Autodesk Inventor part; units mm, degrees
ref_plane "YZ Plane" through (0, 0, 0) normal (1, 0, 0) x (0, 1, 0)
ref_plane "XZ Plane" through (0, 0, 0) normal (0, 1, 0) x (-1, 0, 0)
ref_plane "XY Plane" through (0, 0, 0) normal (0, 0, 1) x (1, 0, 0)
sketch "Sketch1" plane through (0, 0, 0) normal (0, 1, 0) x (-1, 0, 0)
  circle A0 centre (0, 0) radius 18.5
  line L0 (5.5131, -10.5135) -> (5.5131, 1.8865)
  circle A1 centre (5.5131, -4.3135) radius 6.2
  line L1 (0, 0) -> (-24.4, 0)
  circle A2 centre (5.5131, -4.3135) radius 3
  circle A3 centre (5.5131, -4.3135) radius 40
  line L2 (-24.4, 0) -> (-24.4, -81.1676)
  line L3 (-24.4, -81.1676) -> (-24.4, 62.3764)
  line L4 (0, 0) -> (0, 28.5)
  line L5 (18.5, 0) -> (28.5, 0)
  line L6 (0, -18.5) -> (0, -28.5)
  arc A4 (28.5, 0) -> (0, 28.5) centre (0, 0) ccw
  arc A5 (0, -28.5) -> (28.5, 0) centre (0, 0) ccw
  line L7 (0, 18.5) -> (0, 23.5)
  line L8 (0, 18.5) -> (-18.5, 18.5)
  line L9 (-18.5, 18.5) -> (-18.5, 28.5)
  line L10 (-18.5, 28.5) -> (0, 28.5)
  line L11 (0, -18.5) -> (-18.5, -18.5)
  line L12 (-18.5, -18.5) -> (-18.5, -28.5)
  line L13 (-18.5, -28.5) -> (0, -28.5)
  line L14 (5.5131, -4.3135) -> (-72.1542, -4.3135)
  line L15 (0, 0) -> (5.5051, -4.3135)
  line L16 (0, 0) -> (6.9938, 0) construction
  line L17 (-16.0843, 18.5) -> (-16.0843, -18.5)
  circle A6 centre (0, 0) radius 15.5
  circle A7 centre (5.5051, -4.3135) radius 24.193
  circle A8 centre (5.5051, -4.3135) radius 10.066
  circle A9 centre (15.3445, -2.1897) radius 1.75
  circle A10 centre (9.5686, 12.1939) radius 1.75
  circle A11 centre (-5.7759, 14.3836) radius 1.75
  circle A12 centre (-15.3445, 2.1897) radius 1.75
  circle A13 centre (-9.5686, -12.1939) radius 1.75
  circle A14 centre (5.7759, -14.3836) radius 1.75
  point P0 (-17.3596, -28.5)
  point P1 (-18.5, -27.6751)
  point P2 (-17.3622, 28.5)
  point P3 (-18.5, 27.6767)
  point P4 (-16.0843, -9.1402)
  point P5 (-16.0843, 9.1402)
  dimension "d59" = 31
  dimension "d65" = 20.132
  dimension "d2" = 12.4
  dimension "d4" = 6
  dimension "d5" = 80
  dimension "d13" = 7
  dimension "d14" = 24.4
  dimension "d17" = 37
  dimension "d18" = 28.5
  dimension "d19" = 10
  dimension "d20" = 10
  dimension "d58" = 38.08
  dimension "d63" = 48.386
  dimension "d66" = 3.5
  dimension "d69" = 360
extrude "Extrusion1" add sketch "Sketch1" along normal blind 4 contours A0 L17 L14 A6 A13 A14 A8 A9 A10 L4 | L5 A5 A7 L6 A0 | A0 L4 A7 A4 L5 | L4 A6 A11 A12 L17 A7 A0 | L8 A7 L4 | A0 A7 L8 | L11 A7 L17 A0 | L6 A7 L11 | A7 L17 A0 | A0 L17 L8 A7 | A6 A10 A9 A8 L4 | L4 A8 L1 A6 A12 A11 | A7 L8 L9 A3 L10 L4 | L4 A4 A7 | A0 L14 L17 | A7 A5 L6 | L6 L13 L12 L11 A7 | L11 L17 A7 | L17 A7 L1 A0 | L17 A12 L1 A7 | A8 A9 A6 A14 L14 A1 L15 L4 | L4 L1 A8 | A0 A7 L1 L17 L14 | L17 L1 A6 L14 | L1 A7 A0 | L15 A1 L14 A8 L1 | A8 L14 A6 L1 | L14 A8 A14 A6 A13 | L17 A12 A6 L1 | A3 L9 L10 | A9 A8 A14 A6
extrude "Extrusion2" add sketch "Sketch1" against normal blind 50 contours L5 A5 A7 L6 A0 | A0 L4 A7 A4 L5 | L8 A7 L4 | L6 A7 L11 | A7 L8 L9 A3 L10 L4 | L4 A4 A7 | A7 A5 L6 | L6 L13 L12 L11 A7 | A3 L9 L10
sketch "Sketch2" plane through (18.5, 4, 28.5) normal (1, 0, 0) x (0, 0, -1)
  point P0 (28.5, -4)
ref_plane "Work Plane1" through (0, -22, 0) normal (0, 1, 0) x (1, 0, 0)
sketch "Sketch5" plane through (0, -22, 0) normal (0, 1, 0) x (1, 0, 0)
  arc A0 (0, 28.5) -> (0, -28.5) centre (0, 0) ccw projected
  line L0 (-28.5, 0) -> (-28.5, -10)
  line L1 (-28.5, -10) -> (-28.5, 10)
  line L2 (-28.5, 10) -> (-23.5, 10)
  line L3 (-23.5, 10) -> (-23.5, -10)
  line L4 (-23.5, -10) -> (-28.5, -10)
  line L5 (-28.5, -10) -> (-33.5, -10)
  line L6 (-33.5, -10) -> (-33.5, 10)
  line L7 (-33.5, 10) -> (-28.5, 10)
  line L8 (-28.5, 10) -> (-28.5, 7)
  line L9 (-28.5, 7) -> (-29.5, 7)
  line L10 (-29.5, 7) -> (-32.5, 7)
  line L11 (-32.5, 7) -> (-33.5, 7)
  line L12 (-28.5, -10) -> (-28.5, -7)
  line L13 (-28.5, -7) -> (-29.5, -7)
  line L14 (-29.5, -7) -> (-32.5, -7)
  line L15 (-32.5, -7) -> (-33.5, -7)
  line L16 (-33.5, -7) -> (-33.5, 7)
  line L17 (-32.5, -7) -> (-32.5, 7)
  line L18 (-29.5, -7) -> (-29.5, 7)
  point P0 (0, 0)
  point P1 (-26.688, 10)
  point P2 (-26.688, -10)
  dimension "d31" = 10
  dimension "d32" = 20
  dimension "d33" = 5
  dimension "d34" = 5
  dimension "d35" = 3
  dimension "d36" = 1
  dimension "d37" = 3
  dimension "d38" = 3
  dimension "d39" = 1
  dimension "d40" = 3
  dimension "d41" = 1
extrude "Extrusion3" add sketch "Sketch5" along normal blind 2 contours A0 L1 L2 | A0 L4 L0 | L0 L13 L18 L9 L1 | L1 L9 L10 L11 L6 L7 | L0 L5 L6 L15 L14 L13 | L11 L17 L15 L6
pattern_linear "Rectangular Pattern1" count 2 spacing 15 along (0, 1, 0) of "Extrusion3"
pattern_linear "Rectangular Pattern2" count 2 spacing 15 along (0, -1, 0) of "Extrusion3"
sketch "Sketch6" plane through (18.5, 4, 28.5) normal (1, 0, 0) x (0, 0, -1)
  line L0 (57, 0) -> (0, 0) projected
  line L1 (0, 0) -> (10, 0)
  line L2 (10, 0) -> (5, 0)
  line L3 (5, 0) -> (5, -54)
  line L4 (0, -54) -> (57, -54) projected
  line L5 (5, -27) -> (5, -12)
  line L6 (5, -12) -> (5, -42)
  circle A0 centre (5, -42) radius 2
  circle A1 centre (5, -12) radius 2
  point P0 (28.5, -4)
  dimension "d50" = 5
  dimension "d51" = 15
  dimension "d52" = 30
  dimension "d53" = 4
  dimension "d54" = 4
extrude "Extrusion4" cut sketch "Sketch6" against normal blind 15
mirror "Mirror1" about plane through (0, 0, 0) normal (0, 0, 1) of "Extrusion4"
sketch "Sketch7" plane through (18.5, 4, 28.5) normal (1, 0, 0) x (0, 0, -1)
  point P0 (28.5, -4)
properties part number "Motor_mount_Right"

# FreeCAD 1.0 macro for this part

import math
import FreeCAD as App
import Part
import Sketcher
Q = App.Units.Quantity

doc = App.newDocument("Part")
params = doc.addObject("Spreadsheet::Sheet", "Params")
for row, (alias, value) in enumerate([
    ("sketch1_diameter", "3.5 mm"),
    ("sketch1_diameter2", "12.4 mm"),
    ("sketch1_radius", "18.5 mm"),
    ("sketch1_radius2", "28.5 mm"),
    ("sketch1_height", "10 mm"),
    ("pad1_length", "4 mm"),
    ("sketch2_radius", "18.5 mm"),
    ("sketch2_radius2", "28.5 mm"),
    ("sketch2_width", "18.5 mm"),
    ("pad2_length", "50 mm"),
    ("sketch3_width", "3 mm"),
    ("sketch3_height", "20 mm"),
    ("sketch3_radius", "28.5 mm"),
    ("pad3_length", "2 mm"),
    ("linearpattern_pitch", "15 mm"),
    ("linearpattern2_pitch", "15 mm"),
    ("sketch4_diameter", "4 mm"),
    ("pocket1_length", "15 mm"),
], start=1):
    params.set(f"A{row}", alias)
    params.set(f"B{row}", "=" + value)
    params.setAlias(f"B{row}", alias)

body = doc.addObject("PartDesign::Body", "Body")

# Sketch on XZ plane
sketch1 = body.newObject("Sketcher::SketchObject", "Sketch")
sketch1.AttachmentSupport = (doc.getObject("XZ_Plane"), [""])
sketch1.MapMode = "FlatFace"
sketch1.addGeometry([
    Part.LineSegment(App.Vector(0, 28.5, 0), App.Vector(18.5, 28.5, 0)),  # 0
    Part.LineSegment(App.Vector(18.5, 28.5, 0), App.Vector(18.5, 18.5, 0)),  # 1
    Part.LineSegment(App.Vector(18.5, 18.5, 0), App.Vector(16.1, 18.5, 0)),  # 2
    Part.LineSegment(App.Vector(16.1, 18.5, 0), App.Vector(16.1, 9.1, 0)),  # 3
    Part.ArcOfCircle(Part.Circle(App.Vector(0, 0, 0), App.Vector(0, 0, 1), 18.5), math.radians(-30), math.radians(30)),  # 4
    Part.LineSegment(App.Vector(16.1, -9.1, 0), App.Vector(16.1, -18.5, 0)),  # 5
    Part.LineSegment(App.Vector(16.1, -18.5, 0), App.Vector(18.5, -18.5, 0)),  # 6
    Part.LineSegment(App.Vector(18.5, -18.5, 0), App.Vector(18.5, -28.5, 0)),  # 7
    Part.LineSegment(App.Vector(18.5, -28.5, 0), App.Vector(0, -28.5, 0)),  # 8
    Part.ArcOfCircle(Part.Circle(App.Vector(0, 0, 0), App.Vector(0, 0, 1), 28.5), math.radians(90), math.radians(270)),  # 9
    Part.Circle(App.Vector(9.6, -12.2, 0), App.Vector(0, 0, 1), 1.8),  # 10
    Part.Circle(App.Vector(-5.8, -14.4, 0), App.Vector(0, 0, 1), 1.8),  # 11
    Part.Circle(App.Vector(-15.3, -2.2, 0), App.Vector(0, 0, 1), 1.8),  # 12
    Part.Circle(App.Vector(-9.6, 12.2, 0), App.Vector(0, 0, 1), 1.8),  # 13
    Part.Circle(App.Vector(5.8, 14.4, 0), App.Vector(0, 0, 1), 1.8),  # 14
    Part.Circle(App.Vector(15.3, 2.2, 0), App.Vector(0, 0, 1), 1.8),  # 15
    Part.Circle(App.Vector(-5.5, -4.3, 0), App.Vector(0, 0, 1), 6.2),  # 16
], False)
sketch1.addConstraint([
    Sketcher.Constraint("Coincident", 0, 2, 1, 1),
    Sketcher.Constraint("Coincident", 1, 2, 2, 1),
    Sketcher.Constraint("Coincident", 2, 2, 3, 1),
    Sketcher.Constraint("Coincident", 3, 2, 4, 2),
    Sketcher.Constraint("Coincident", 4, 1, 5, 1),
    Sketcher.Constraint("Coincident", 5, 2, 6, 1),
    Sketcher.Constraint("Coincident", 6, 2, 7, 1),
    Sketcher.Constraint("Coincident", 7, 2, 8, 1),
    Sketcher.Constraint("Tangent", 8, 2, 9, 2),
    Sketcher.Constraint("Tangent", 9, 1, 0, 1),
    Sketcher.Constraint("Horizontal", 0),
    Sketcher.Constraint("Vertical", 1),
    Sketcher.Constraint("Horizontal", 2),
    Sketcher.Constraint("Vertical", 3),
    Sketcher.Constraint("Vertical", 5),
    Sketcher.Constraint("Horizontal", 6),
    Sketcher.Constraint("Vertical", 7),
    Sketcher.Constraint("Horizontal", 8),
    Sketcher.Constraint("Coincident", 4, 3, -1, 1),
    Sketcher.Constraint("Coincident", 9, 3, -1, 1),
    Sketcher.Constraint("Equal", 10, 11),
    Sketcher.Constraint("Equal", 11, 12),
    Sketcher.Constraint("Equal", 12, 13),
    Sketcher.Constraint("Equal", 13, 14),
    Sketcher.Constraint("Equal", 14, 15),
    Sketcher.Constraint("Symmetric", 10, 3, 13, 3, -1, 1),
    Sketcher.Constraint("Symmetric", 11, 3, 14, 3, -1, 1),
    Sketcher.Constraint("Symmetric", 12, 3, 15, 3, -1, 1),
    Sketcher.Constraint("Symmetric", 2, 2, 5, 2, -1),
    Sketcher.Constraint("Vertical", 1, 2, 6, 2),
    Sketcher.Constraint("Diameter", 10, Q("3.5 mm")),
    Sketcher.Constraint("Diameter", 16, Q("12.4 mm")),
    Sketcher.Constraint("Radius", 4, Q("18.5 mm")),
    Sketcher.Constraint("Radius", 9, Q("28.5 mm")),
    Sketcher.Constraint("DistanceY", 1, 2, 1, 1, Q("10 mm")),
    Sketcher.Constraint("DistanceX", 0, 1, 0, 2, Q("18.5 mm")),
    Sketcher.Constraint("DistanceY", 11, 3, 16, 3, Q("10.07 mm")),
    Sketcher.Constraint("DistanceY", 4, 1, 15, 3, Q("11.33 mm")),
    Sketcher.Constraint("DistanceX", 2, 2, 2, 1, Q("2.4157 mm")),
    Sketcher.Constraint("DistanceY", 10, 3, -1, 1, Q("12.194 mm")),
    Sketcher.Constraint("DistanceX", 11, 3, -1, 1, Q("5.776 mm")),
    Sketcher.Constraint("DistanceX", 16, 3, -1, 1, Q("5.513 mm")),
    Sketcher.Constraint("DistanceY", 11, 3, 12, 3, Q("12.194 mm")),
    Sketcher.Constraint("DistanceX", 12, 3, 10, 3, Q("24.913 mm")),
    Sketcher.Constraint("DistanceX", 12, 3, 13, 3, Q("5.776 mm")),
])
sketch1.setExpression("Constraints[30]", "Params.sketch1_diameter")
sketch1.setExpression("Constraints[31]", "Params.sketch1_diameter2")
sketch1.setExpression("Constraints[32]", "Params.sketch1_radius")
sketch1.setExpression("Constraints[33]", "Params.sketch1_radius2")
sketch1.setExpression("Constraints[34]", "Params.sketch1_height")
pad1 = body.newObject("PartDesign::Pad", "Pad")
pad1.Profile = sketch1
pad1.setExpression("Length", "Params.pad1_length")
pad1.Reversed = True

# Sketch on XZ plane
sketch2 = body.newObject("Sketcher::SketchObject", "Sketch001")
sketch2.AttachmentSupport = (doc.getObject("XZ_Plane"), [""])
sketch2.MapMode = "FlatFace"
sketch2.addGeometry([
    Part.LineSegment(App.Vector(0, 28, 0), App.Vector(18, 28, 0)),  # 0
    Part.LineSegment(App.Vector(18, 28, 0), App.Vector(18, 18, 0)),  # 1
    Part.LineSegment(App.Vector(18, 18, 0), App.Vector(0, 18, 0)),  # 2
    Part.ArcOfCircle(Part.Circle(App.Vector(0, 0, 0), App.Vector(0, 0, 1), 18), math.radians(90), math.radians(270)),  # 3
    Part.LineSegment(App.Vector(0, -18, 0), App.Vector(18, -18, 0)),  # 4
    Part.LineSegment(App.Vector(18, -18, 0), App.Vector(18, -28, 0)),  # 5
    Part.LineSegment(App.Vector(18, -28, 0), App.Vector(0, -28, 0)),  # 6
    Part.ArcOfCircle(Part.Circle(App.Vector(0, 0, 0), App.Vector(0, 0, 1), 28), math.radians(90), math.radians(270)),  # 7
], False)
sketch2.addConstraint([
    Sketcher.Constraint("Coincident", 0, 2, 1, 1),
    Sketcher.Constraint("Coincident", 1, 2, 2, 1),
    Sketcher.Constraint("Tangent", 2, 2, 3, 1),
    Sketcher.Constraint("Tangent", 3, 2, 4, 1),
    Sketcher.Constraint("Coincident", 4, 2, 5, 1),
    Sketcher.Constraint("Coincident", 5, 2, 6, 1),
    Sketcher.Constraint("Tangent", 6, 2, 7, 2),
    Sketcher.Constraint("Tangent", 7, 1, 0, 1),
    Sketcher.Constraint("Horizontal", 0),
    Sketcher.Constraint("Vertical", 1),
    Sketcher.Constraint("Horizontal", 2),
    Sketcher.Constraint("Horizontal", 4),
    Sketcher.Constraint("Vertical", 5),
    Sketcher.Constraint("Horizontal", 6),
    Sketcher.Constraint("Coincident", 3, 3, -1, 1),
    Sketcher.Constraint("Coincident", 7, 3, -1, 1),
    Sketcher.Constraint("Vertical", 1, 2, 4, 2),
    Sketcher.Constraint("Radius", 3, Q("18.5 mm")),
    Sketcher.Constraint("Radius", 7, Q("28.5 mm")),
    Sketcher.Constraint("DistanceX", 0, 1, 0, 2, Q("18.5 mm")),
])
sketch2.setExpression("Constraints[17]", "Params.sketch2_radius")
sketch2.setExpression("Constraints[18]", "Params.sketch2_radius2")
sketch2.setExpression("Constraints[19]", "Params.sketch2_width")
pad2 = body.newObject("PartDesign::Pad", "Pad001")
pad2.Profile = sketch2
pad2.setExpression("Length", "Params.pad2_length")

# Sketch on XZ plane
sketch3 = body.newObject("Sketcher::SketchObject", "Sketch002")
sketch3.AttachmentSupport = (doc.getObject("XZ_Plane"), [""])
sketch3.MapMode = "FlatFace"
sketch3.AttachmentOffset = App.Placement(App.Vector(0, 0, 22), App.Rotation())
sketch3.addGeometry([
    Part.LineSegment(App.Vector(-26.7, -10, 0), App.Vector(-33.5, -10, 0)),  # 0
    Part.LineSegment(App.Vector(-33.5, -10, 0), App.Vector(-33.5, 10, 0)),  # 1
    Part.LineSegment(App.Vector(-33.5, 10, 0), App.Vector(-26.7, 10, 0)),  # 2
    Part.ArcOfCircle(Part.Circle(App.Vector(0, 0, 0), App.Vector(0, 0, 1), 28.5), math.radians(159), math.radians(201)),  # 3
    Part.LineSegment(App.Vector(-29.5, -7, 0), App.Vector(-29.5, 7, 0)),  # 4
    Part.LineSegment(App.Vector(-29.5, 7, 0), App.Vector(-32.5, 7, 0)),  # 5
    Part.LineSegment(App.Vector(-32.5, 7, 0), App.Vector(-32.5, -7, 0)),  # 6
    Part.LineSegment(App.Vector(-32.5, -7, 0), App.Vector(-29.5, -7, 0)),  # 7
], False)
sketch3.addConstraint([
    Sketcher.Constraint("Coincident", 0, 2, 1, 1),
    Sketcher.Constraint("Coincident", 1, 2, 2, 1),
    Sketcher.Constraint("Coincident", 2, 2, 3, 1),
    Sketcher.Constraint("Coincident", 3, 2, 0, 1),
    Sketcher.Constraint("Coincident", 4, 2, 5, 1),
    Sketcher.Constraint("Coincident", 5, 2, 6, 1),
    Sketcher.Constraint("Coincident", 6, 2, 7, 1),
    Sketcher.Constraint("Coincident", 7, 2, 4, 1),
    Sketcher.Constraint("Horizontal", 0),
    Sketcher.Constraint("Vertical", 1),
    Sketcher.Constraint("Horizontal", 2),
    Sketcher.Constraint("Vertical", 4),
    Sketcher.Constraint("Horizontal", 5),
    Sketcher.Constraint("Vertical", 6),
    Sketcher.Constraint("Horizontal", 7),
    Sketcher.Constraint("Coincident", 3, 3, -1, 1),
    Sketcher.Constraint("Vertical", 2, 2, 3, 2),
    Sketcher.Constraint("DistanceX", 5, 2, 5, 1, Q("3 mm")),
    Sketcher.Constraint("DistanceY", 1, 1, 1, 2, Q("20 mm")),
    Sketcher.Constraint("DistanceY", 4, 2, 2, 2, Q("3 mm")),
    Sketcher.Constraint("DistanceX", 1, 2, 5, 2, Q("1 mm")),
    Sketcher.Constraint("DistanceY", 0, 2, 6, 2, Q("3 mm")),
    Sketcher.Constraint("Radius", 3, Q("28.5 mm")),
    Sketcher.Constraint("DistanceX", 0, 2, -1, 1, Q("33.5 mm")),
])
sketch3.setExpression("Constraints[17]", "Params.sketch3_width")
sketch3.setExpression("Constraints[18]", "Params.sketch3_height")
sketch3.setExpression("Constraints[22]", "Params.sketch3_radius")
pad3 = body.newObject("PartDesign::Pad", "Pad002")
pad3.Profile = sketch3
pad3.setExpression("Length", "Params.pad3_length")
pad3.Reversed = True
doc.recompute()

linearpattern = body.newObject("PartDesign::LinearPattern", "LinearPattern")
linearpattern.Originals = [pad3]
linearpattern.Direction = (doc.getObject("Y_Axis"), [""])
linearpattern.Mode = "offset"
linearpattern.setExpression("Offset", "Params.linearpattern_pitch")
linearpattern.Occurrences = 2
body.Tip = linearpattern
doc.recompute()

linearpattern2 = body.newObject("PartDesign::LinearPattern", "LinearPattern001")
linearpattern2.Originals = [pad3]
linearpattern2.Direction = (doc.getObject("Y_Axis"), [""])
linearpattern2.Mode = "offset"
linearpattern2.setExpression("Offset", "Params.linearpattern2_pitch")
linearpattern2.Occurrences = 2
linearpattern2.Reversed = True
body.Tip = linearpattern2

# Sketch on YZ plane
sketch4 = body.newObject("Sketcher::SketchObject", "Sketch003")
sketch4.AttachmentSupport = (doc.getObject("YZ_Plane"), [""])
sketch4.MapMode = "FlatFace"
sketch4.AttachmentOffset = App.Placement(App.Vector(0, 0, 18.5), App.Rotation())
sketch4.addGeometry([
    Part.Circle(App.Vector(-8, 23.5, 0), App.Vector(0, 0, 1), 2),
    Part.Circle(App.Vector(-38, 23.5, 0), App.Vector(0, 0, 1), 2),
], False)
sketch4.addConstraint([
    Sketcher.Constraint("Equal", 0, 1),
    Sketcher.Constraint("Horizontal", 0, 3, 1, 3),
    Sketcher.Constraint("Diameter", 0, Q("4 mm")),
    Sketcher.Constraint("DistanceX", 1, 3, 0, 3, Q("30 mm")),
    Sketcher.Constraint("DistanceX", 0, 3, -1, 1, Q("8 mm")),
    Sketcher.Constraint("DistanceY", -1, 1, 0, 3, Q("23.5 mm")),
])
sketch4.setExpression("Constraints[2]", "Params.sketch4_diameter")
pocket1 = body.newObject("PartDesign::Pocket", "Pocket")
pocket1.Profile = sketch4
pocket1.setExpression("Length", "Params.pocket1_length")
doc.recompute()

mirrored = body.newObject("PartDesign::Mirrored", "Mirrored")
mirrored.Originals = [pocket1]
mirrored.MirrorPlane = (doc.getObject("XY_Plane"), [""])
body.Tip = mirrored

doc.recompute()
